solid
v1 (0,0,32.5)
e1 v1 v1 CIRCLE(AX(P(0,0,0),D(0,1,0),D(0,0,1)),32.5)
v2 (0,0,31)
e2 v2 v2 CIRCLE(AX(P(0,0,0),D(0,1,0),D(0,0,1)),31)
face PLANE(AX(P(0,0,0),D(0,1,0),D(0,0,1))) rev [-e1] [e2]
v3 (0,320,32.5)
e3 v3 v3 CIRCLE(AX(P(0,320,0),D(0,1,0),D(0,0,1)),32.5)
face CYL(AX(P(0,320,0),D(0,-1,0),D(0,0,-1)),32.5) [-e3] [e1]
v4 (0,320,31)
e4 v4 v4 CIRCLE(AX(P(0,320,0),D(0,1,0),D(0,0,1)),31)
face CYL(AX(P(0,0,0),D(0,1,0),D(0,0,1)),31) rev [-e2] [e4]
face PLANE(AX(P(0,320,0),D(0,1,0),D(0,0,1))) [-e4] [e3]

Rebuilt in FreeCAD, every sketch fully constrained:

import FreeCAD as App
import Part
import Sketcher
from FreeCAD import Vector

doc = App.newDocument("Part")
body = doc.addObject("PartDesign::Body", "Body")

# Sketch on XZ plane
sketch1 = body.newObject("Sketcher::SketchObject", "Sketch")
sketch1.AttachmentSupport = (doc.getObject("XZ_Plane"), [""])
sketch1.MapMode = "FlatFace"
sketch1.addGeometry(Part.Circle(Vector(0, 0, 0), Vector(0, 0, 1), 32.5), False)
sketch1.addConstraint(Sketcher.Constraint("Coincident", 0, 3, -1, 1))
sketch1.addConstraint(Sketcher.Constraint("Diameter", 0, 65.0))
pad1 = body.newObject("PartDesign::Pad", "Pad")
pad1.Profile = sketch1
pad1.Length = 320
pad1.Reversed = True

# Sketch on XZ plane
sketch2 = body.newObject("Sketcher::SketchObject", "Sketch001")
sketch2.AttachmentSupport = (doc.getObject("XZ_Plane"), [""])
sketch2.MapMode = "FlatFace"
sketch2.AttachmentOffset = App.Placement(Vector(0, 0, -320), App.Rotation())
sketch2.addGeometry(Part.Circle(Vector(0, 0, 0), Vector(0, 0, 1), 31), False)
sketch2.addConstraint(Sketcher.Constraint("Coincident", 0, 3, -1, 1))
sketch2.addConstraint(Sketcher.Constraint("Diameter", 0, 62.0))
pocket1 = body.newObject("PartDesign::Pocket", "Pocket")
pocket1.Profile = sketch2
pocket1.Type = "ThroughAll"
pocket1.Reversed = True

doc.recompute()
